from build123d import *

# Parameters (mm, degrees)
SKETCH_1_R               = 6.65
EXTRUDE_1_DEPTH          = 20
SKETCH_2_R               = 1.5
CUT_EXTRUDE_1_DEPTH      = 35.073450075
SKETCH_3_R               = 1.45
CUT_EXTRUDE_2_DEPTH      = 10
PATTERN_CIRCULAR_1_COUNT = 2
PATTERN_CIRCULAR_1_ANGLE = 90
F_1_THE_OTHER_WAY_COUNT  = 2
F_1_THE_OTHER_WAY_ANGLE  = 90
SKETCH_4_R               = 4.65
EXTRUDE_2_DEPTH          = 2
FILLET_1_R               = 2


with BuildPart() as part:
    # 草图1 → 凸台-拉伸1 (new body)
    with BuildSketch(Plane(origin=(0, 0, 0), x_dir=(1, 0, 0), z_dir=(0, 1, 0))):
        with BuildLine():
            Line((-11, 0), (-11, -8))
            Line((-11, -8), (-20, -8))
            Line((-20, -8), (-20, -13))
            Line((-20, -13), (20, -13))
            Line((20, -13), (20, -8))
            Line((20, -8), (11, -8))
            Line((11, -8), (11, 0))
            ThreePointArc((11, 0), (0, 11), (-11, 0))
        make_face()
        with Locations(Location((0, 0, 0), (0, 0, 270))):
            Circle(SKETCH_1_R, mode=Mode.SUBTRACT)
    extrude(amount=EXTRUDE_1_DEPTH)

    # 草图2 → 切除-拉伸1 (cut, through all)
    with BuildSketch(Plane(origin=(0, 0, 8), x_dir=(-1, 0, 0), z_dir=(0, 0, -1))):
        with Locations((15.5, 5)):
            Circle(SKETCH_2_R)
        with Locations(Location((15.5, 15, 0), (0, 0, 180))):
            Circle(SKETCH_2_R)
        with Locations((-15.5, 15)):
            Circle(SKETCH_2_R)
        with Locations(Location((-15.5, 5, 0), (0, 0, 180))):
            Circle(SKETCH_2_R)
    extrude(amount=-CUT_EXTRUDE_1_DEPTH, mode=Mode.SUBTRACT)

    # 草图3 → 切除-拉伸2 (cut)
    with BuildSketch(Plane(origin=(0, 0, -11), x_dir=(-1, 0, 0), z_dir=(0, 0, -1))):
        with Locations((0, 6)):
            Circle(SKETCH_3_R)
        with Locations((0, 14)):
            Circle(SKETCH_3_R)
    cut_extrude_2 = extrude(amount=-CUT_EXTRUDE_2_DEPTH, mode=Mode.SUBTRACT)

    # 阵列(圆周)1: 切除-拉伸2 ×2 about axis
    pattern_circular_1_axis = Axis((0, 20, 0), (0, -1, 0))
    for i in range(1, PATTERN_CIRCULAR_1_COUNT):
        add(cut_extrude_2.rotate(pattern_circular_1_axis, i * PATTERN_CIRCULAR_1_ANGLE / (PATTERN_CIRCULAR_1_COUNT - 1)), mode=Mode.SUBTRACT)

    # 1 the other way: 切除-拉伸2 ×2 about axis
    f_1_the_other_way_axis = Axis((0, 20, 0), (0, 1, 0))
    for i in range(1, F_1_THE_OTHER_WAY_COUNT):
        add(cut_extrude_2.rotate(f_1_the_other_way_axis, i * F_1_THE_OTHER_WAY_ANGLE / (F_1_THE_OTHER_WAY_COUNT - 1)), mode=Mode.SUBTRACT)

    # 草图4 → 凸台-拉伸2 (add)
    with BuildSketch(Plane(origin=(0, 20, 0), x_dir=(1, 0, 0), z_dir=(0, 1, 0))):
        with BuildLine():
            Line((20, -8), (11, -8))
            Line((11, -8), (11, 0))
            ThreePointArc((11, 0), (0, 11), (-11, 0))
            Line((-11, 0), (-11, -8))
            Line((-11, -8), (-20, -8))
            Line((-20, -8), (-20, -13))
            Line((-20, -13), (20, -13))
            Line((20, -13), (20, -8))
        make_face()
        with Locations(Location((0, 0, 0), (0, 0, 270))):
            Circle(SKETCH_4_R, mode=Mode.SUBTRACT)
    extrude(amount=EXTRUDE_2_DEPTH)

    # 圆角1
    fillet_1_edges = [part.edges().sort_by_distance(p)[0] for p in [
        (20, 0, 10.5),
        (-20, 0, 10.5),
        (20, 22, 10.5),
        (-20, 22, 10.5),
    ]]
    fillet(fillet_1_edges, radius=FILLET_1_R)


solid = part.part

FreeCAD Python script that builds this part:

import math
import FreeCAD as App
import Part
import Sketcher
from FreeCAD import Vector
Q = App.Units.Quantity


def edges_at(feature, points):
    """Names of the edges that pass closest to the given points."""
    edges = feature.Shape.Edges
    near = lambda p: min(range(len(edges)), key=lambda i: edges[i].distToShape(Part.Vertex(*p))[0])
    return sorted({f"Edge{near(p) + 1}" for p in points})

doc = App.newDocument("Part")
body = doc.addObject("PartDesign::Body", "Body")

# Sketch on XZ plane
sketch1 = doc.addObject("Sketcher::SketchObject", "Sketch")
body.addObject(sketch1)
sketch1.AttachmentSupport = (doc.XZ_Plane, [""])
sketch1.MapMode = "FlatFace"
sketch1.addGeometry([
    Part.LineSegment(Vector(-11, 0, 0), Vector(-11, 8, 0)),  # 0
    Part.LineSegment(Vector(-11, 8, 0), Vector(-20, 8, 0)),  # 1
    Part.LineSegment(Vector(-20, 8, 0), Vector(-20, 13, 0)),  # 2
    Part.LineSegment(Vector(-20, 13, 0), Vector(20, 13, 0)),  # 3
    Part.LineSegment(Vector(20, 13, 0), Vector(20, 8, 0)),  # 4
    Part.LineSegment(Vector(20, 8, 0), Vector(11, 8, 0)),  # 5
    Part.LineSegment(Vector(11, 8, 0), Vector(11, 0, 0)),  # 6
    Part.ArcOfCircle(Part.Circle(Vector(0, 0, 0), Vector(0, 0, 1), 11), math.radians(180), math.radians(360)),  # 7
    Part.Circle(Vector(0, 0, 0), Vector(0, 0, 1), 7),  # 8
], False)
sketch1.addConstraint([
    Sketcher.Constraint("Coincident", 0, 2, 1, 1),
    Sketcher.Constraint("Coincident", 1, 2, 2, 1),
    Sketcher.Constraint("Coincident", 2, 2, 3, 1),
    Sketcher.Constraint("Coincident", 3, 2, 4, 1),
    Sketcher.Constraint("Coincident", 4, 2, 5, 1),
    Sketcher.Constraint("Coincident", 5, 2, 6, 1),
    Sketcher.Constraint("Tangent", 6, 2, 7, 2),
    Sketcher.Constraint("Tangent", 7, 1, 0, 1),
    Sketcher.Constraint("Vertical", 0),
    Sketcher.Constraint("Horizontal", 1),
    Sketcher.Constraint("Vertical", 2),
    Sketcher.Constraint("Horizontal", 3),
    Sketcher.Constraint("Vertical", 4),
    Sketcher.Constraint("Horizontal", 5),
    Sketcher.Constraint("Vertical", 6),
    Sketcher.Constraint("Coincident", 7, 3, -1, 1),
    Sketcher.Constraint("Coincident", 8, 3, -1, 1),
    Sketcher.Constraint("Symmetric", 1, 2, 4, 2, -2),
    Sketcher.Constraint("Radius", 7, Q("11 mm")),
    Sketcher.Constraint("Diameter", 8, Q("13.3 mm")),
    Sketcher.Constraint("DistanceX", 1, 2, 1, 1, Q("9 mm")),
    Sketcher.Constraint("DistanceY", 0, 1, 0, 2, Q("8 mm")),
    Sketcher.Constraint("DistanceY", 2, 1, 2, 2, Q("5 mm")),
])
pad1 = doc.addObject("PartDesign::Pad", "Pad")
body.addObject(pad1)
pad1.Profile = sketch1
pad1.Length = 20
pad1.Reversed = True

# Sketch on XY plane
sketch2 = doc.addObject("Sketcher::SketchObject", "Sketch001")
body.addObject(sketch2)
sketch2.AttachmentSupport = (doc.XY_Plane, [""])
sketch2.MapMode = "FlatFace"
sketch2.AttachmentOffset = App.Placement(Vector(0, 0, 8), App.Rotation())
sketch2.addGeometry([
    Part.Circle(Vector(-15.5, 5, 0), Vector(0, 0, 1), 1.5),
    Part.Circle(Vector(-15.5, 15, 0), Vector(0, 0, 1), 1.5),
    Part.Circle(Vector(15.5, 15, 0), Vector(0, 0, 1), 1.5),
    Part.Circle(Vector(15.5, 5, 0), Vector(0, 0, 1), 1.5),
], False)
sketch2.addConstraint([
    Sketcher.Constraint("Equal", 0, 1),
    Sketcher.Constraint("Equal", 1, 2),
    Sketcher.Constraint("Equal", 2, 3),
    Sketcher.Constraint("Symmetric", 1, 3, 2, 3, -2),
    Sketcher.Constraint("Symmetric", 0, 3, 3, 3, -2),
    Sketcher.Constraint("Vertical", 0, 3, 1, 3),
    Sketcher.Constraint("Diameter", 0, Q("3 mm")),
    Sketcher.Constraint("DistanceY", -1, 1, 0, 3, Q("5 mm")),
    Sketcher.Constraint("DistanceY", -1, 1, 1, 3, Q("15 mm")),
    Sketcher.Constraint("DistanceX", 1, 3, 2, 3, Q("31 mm")),
])
pocket1 = doc.addObject("PartDesign::Pocket", "Pocket")
body.addObject(pocket1)
pocket1.Profile = sketch2
pocket1.Type = "ThroughAll"
pocket1.Reversed = True

# Sketch on XY plane
sketch3 = doc.addObject("Sketcher::SketchObject", "Sketch002")
body.addObject(sketch3)
sketch3.AttachmentSupport = (doc.XY_Plane, [""])
sketch3.MapMode = "FlatFace"
sketch3.AttachmentOffset = App.Placement(Vector(0, 0, -11), App.Rotation())
sketch3.addGeometry([
    Part.Circle(Vector(0, 6, 0), Vector(0, 0, 1), 1.4),
    Part.Circle(Vector(0, 14, 0), Vector(0, 0, 1), 1.4),
], False)
sketch3.addConstraint([
    Sketcher.Constraint("Equal", 0, 1),
    Sketcher.Constraint("PointOnObject", 0, 3, -2),
    Sketcher.Constraint("PointOnObject", 1, 3, -2),
    Sketcher.Constraint("Diameter", 0, Q("2.9 mm")),
    Sketcher.Constraint("DistanceY", -1, 1, 0, 3, Q("6 mm")),
    Sketcher.Constraint("DistanceY", -1, 1, 1, 3, Q("14 mm")),
])
pocket2 = doc.addObject("PartDesign::Pocket", "Pocket001")
body.addObject(pocket2)
pocket2.Profile = sketch3
pocket2.Length = 10
pocket2.Reversed = True
doc.recompute()

polarpattern = doc.addObject("PartDesign::PolarPattern", "PolarPattern")
body.addObject(polarpattern)
polarpattern.Originals = [pocket2]
polarpattern.Axis = (doc.Y_Axis, [""])
polarpattern.Angle = 90
polarpattern.Occurrences = 2
polarpattern.Reversed = True
body.Tip = polarpattern
doc.recompute()

polarpattern2 = doc.addObject("PartDesign::PolarPattern", "PolarPattern001")
body.addObject(polarpattern2)
polarpattern2.Originals = [pocket2]
polarpattern2.Axis = (doc.Y_Axis, [""])
polarpattern2.Angle = 90
polarpattern2.Occurrences = 2
body.Tip = polarpattern2

# Sketch on XZ plane
sketch4 = doc.addObject("Sketcher::SketchObject", "Sketch003")
body.addObject(sketch4)
sketch4.AttachmentSupport = (doc.XZ_Plane, [""])
sketch4.MapMode = "FlatFace"
sketch4.AttachmentOffset = App.Placement(Vector(0, 0, -20), App.Rotation())
sketch4.addGeometry([
    Part.LineSegment(Vector(20, 8, 0), Vector(11, 8, 0)),  # 0
    Part.LineSegment(Vector(11, 8, 0), Vector(11, 0, 0)),  # 1
    Part.ArcOfCircle(Part.Circle(Vector(0, 0, 0), Vector(0, 0, 1), 11), math.radians(180), math.radians(360)),  # 2
    Part.LineSegment(Vector(-11, 0, 0), Vector(-11, 8, 0)),  # 3
    Part.LineSegment(Vector(-11, 8, 0), Vector(-20, 8, 0)),  # 4
    Part.LineSegment(Vector(-20, 8, 0), Vector(-20, 13, 0)),  # 5
    Part.LineSegment(Vector(-20, 13, 0), Vector(20, 13, 0)),  # 6
    Part.LineSegment(Vector(20, 13, 0), Vector(20, 8, 0)),  # 7
    Part.Circle(Vector(0, 0, 0), Vector(0, 0, 1), 4.7),  # 8
], False)
sketch4.addConstraint([
    Sketcher.Constraint("Coincident", 0, 2, 1, 1),
    Sketcher.Constraint("Tangent", 1, 2, 2, 2),
    Sketcher.Constraint("Tangent", 2, 1, 3, 1),
    Sketcher.Constraint("Coincident", 3, 2, 4, 1),
    Sketcher.Constraint("Coincident", 4, 2, 5, 1),
    Sketcher.Constraint("Coincident", 5, 2, 6, 1),
    Sketcher.Constraint("Coincident", 6, 2, 7, 1),
    Sketcher.Constraint("Coincident", 7, 2, 0, 1),
    Sketcher.Constraint("Horizontal", 0),
    Sketcher.Constraint("Vertical", 1),
    Sketcher.Constraint("Vertical", 3),
    Sketcher.Constraint("Horizontal", 4),
    Sketcher.Constraint("Vertical", 5),
    Sketcher.Constraint("Horizontal", 6),
    Sketcher.Constraint("Vertical", 7),
    Sketcher.Constraint("Coincident", 2, 3, -1, 1),
    Sketcher.Constraint("Coincident", 8, 3, -1, 1),
    Sketcher.Constraint("Symmetric", 4, 2, 7, 2, -2),
    Sketcher.Constraint("Radius", 2, Q("11 mm")),
    Sketcher.Constraint("Diameter", 8, Q("9.3 mm")),
    Sketcher.Constraint("DistanceX", 0, 2, 0, 1, Q("9 mm")),
    Sketcher.Constraint("DistanceY", 1, 2, 1, 1, Q("8 mm")),
    Sketcher.Constraint("DistanceY", 5, 1, 5, 2, Q("5 mm")),
])
pad2 = doc.addObject("PartDesign::Pad", "Pad001")
body.addObject(pad2)
pad2.Profile = sketch4
pad2.Length = 2
pad2.Reversed = True
doc.recompute()

fillet = doc.addObject("PartDesign::Fillet", "Fillet")
body.addObject(fillet)
fillet.Base = (pad2, edges_at(pad2, [
    (20, 0, 10.5),
    (-20, 0, 10.5),
    (20, 22, 10.5),
    (-20, 22, 10.5),
]))
fillet.Radius = 2

doc.recompute()
